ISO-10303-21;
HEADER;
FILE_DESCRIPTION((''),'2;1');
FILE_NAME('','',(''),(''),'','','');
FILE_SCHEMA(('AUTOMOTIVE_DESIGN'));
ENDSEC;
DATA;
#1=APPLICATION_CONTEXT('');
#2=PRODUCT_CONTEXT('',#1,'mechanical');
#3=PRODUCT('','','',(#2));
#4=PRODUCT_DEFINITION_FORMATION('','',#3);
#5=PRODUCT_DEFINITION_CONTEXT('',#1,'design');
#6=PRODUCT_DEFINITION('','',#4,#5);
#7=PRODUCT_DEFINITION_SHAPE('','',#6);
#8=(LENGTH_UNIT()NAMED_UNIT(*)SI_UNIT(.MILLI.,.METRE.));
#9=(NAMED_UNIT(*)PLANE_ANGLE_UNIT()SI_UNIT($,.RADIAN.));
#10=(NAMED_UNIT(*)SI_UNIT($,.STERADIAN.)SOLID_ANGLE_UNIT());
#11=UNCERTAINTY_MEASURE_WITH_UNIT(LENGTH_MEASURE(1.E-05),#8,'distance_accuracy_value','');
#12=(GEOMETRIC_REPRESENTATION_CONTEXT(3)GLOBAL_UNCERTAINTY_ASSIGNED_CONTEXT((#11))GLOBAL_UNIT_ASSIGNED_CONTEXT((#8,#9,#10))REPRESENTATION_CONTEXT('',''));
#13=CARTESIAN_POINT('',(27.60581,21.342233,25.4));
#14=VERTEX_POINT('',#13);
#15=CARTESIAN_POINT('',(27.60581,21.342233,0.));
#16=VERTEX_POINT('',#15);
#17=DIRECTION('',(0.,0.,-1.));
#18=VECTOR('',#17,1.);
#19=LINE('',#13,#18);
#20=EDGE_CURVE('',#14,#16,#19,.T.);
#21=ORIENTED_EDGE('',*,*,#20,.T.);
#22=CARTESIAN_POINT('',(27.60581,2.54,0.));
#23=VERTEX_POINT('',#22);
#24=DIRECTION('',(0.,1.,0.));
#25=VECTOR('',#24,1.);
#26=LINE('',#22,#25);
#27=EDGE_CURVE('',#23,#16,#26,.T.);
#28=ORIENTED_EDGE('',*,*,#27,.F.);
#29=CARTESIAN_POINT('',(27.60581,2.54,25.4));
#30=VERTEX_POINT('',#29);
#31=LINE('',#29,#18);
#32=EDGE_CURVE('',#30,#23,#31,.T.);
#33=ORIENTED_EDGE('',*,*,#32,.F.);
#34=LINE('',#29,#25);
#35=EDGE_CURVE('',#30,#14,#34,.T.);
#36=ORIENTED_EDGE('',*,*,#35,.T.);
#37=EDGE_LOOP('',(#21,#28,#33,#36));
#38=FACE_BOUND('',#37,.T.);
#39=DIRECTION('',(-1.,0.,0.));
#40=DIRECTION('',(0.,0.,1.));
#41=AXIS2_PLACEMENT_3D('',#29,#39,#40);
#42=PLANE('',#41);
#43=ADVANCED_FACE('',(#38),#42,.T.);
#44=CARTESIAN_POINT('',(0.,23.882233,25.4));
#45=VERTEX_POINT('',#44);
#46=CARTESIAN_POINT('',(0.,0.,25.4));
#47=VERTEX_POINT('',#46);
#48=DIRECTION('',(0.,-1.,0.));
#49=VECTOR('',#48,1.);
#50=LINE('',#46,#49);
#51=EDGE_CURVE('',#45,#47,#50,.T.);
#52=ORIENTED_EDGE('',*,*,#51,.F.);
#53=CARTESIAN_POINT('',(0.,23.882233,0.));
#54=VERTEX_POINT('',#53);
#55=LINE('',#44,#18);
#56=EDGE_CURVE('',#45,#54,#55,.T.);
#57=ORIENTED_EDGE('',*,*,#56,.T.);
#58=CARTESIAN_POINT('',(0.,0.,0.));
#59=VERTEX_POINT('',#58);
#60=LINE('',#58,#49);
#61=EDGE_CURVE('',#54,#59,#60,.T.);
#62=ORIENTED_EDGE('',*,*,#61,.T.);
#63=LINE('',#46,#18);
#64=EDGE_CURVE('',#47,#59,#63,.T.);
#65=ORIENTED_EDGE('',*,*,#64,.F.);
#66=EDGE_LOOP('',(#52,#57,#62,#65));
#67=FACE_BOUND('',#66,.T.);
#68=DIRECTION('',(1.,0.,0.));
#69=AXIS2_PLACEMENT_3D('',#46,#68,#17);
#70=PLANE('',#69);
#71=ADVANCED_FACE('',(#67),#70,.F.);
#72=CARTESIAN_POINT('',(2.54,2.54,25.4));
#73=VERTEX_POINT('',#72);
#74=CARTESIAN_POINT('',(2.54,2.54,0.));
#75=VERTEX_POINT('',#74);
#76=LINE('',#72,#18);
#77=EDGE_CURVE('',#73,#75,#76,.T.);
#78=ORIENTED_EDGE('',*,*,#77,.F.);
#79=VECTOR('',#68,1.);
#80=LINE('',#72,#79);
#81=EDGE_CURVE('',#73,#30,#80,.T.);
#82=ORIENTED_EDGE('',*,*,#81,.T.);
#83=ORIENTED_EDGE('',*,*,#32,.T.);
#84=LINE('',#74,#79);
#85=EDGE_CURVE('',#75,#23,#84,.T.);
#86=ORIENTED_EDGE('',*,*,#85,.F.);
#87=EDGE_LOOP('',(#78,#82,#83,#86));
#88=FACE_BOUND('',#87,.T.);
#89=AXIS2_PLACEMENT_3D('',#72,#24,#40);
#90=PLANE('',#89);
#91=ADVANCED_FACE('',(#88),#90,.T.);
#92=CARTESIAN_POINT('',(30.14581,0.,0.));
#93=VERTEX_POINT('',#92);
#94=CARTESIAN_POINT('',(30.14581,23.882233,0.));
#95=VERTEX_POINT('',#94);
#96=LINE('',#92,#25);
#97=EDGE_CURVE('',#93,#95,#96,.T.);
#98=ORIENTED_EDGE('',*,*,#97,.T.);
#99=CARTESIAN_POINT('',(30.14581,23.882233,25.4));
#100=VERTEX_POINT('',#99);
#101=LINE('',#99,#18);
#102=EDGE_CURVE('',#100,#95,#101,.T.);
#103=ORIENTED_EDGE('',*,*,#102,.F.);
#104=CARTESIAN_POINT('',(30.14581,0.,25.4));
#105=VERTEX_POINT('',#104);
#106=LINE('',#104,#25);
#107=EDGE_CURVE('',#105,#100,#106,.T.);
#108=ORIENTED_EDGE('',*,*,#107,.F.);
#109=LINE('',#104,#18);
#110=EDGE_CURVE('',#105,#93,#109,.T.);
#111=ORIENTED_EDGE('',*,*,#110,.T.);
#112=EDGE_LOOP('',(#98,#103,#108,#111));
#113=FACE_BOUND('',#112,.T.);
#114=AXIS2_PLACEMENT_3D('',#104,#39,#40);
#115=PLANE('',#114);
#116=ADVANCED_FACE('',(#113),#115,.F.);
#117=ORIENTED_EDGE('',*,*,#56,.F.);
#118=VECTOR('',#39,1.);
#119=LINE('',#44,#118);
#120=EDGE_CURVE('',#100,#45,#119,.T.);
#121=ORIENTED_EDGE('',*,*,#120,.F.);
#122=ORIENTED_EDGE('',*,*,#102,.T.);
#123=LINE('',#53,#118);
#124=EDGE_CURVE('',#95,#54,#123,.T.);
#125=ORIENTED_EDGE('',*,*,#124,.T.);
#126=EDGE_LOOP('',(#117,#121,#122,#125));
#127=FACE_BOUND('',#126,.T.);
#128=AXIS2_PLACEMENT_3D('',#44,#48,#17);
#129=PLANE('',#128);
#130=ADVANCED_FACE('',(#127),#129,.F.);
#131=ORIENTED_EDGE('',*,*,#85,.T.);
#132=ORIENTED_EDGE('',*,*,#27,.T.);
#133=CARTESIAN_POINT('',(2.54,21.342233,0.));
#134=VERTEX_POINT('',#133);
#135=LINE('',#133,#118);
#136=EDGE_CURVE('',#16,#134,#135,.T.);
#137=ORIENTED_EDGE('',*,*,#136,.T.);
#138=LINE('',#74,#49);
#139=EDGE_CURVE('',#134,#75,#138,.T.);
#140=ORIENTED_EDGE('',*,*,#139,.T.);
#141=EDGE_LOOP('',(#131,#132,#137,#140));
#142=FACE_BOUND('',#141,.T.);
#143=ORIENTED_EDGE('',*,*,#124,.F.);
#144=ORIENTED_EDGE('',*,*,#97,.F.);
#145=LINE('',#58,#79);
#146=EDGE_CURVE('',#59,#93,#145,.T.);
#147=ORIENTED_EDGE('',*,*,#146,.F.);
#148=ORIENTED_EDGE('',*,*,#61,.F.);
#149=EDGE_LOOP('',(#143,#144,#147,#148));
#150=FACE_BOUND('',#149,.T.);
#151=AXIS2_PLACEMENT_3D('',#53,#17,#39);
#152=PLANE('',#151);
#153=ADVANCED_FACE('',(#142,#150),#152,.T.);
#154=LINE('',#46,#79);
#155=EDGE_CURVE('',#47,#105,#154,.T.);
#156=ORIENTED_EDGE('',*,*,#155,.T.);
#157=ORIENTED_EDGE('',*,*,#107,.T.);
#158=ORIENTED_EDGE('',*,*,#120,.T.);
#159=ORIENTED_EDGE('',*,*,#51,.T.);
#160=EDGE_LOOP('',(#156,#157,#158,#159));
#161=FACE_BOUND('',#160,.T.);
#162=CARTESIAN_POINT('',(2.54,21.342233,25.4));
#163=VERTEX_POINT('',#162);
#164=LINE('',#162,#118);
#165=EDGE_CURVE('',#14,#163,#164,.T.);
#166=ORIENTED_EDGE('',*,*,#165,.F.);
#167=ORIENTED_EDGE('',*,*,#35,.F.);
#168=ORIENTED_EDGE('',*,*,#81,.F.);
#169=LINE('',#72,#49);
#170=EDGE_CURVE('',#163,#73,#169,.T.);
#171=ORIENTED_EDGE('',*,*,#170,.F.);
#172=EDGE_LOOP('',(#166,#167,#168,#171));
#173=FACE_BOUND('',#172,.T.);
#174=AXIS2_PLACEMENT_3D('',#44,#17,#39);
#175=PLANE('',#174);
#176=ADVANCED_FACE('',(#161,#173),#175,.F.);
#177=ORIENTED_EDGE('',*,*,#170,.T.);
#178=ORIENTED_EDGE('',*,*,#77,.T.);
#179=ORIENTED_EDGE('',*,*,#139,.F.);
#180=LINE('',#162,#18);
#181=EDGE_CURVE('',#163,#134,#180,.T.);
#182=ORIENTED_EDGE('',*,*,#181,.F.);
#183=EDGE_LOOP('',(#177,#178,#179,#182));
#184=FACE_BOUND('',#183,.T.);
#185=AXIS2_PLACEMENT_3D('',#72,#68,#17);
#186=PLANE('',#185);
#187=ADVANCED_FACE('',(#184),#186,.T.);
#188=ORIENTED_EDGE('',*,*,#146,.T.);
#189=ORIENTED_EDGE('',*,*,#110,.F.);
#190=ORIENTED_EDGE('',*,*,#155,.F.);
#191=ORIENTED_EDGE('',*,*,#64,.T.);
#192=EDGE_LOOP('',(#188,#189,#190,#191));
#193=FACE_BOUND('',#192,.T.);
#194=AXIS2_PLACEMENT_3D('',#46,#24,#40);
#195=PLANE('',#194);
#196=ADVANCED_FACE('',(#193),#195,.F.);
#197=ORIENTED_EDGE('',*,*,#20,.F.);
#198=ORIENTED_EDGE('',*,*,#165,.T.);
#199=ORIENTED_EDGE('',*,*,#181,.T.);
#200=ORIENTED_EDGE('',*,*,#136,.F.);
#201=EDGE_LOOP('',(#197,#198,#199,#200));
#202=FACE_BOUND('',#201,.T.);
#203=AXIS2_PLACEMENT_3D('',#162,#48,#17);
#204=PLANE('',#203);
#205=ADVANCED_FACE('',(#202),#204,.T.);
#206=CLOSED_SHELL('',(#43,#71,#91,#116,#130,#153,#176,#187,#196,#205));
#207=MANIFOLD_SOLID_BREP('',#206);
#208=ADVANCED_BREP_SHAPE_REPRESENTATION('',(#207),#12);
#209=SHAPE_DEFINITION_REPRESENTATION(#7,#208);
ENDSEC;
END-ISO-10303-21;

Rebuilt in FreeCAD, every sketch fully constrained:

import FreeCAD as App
import Part
import Sketcher
Q = App.Units.Quantity


def add_polygon(sketch, points):
    """Adds a closed chain of lines whose ends are joined by coincident constraints."""
    first, n = sketch.GeometryCount, len(points)
    for a, b in zip(points, points[1:] + points[:1]):
        sketch.addGeometry(Part.LineSegment(App.Vector(*a, 0), App.Vector(*b, 0)), False)
    for i in range(n):
        sketch.addConstraint(Sketcher.Constraint("Coincident", first + i, 2, first + (i + 1) % n, 1))

doc = App.newDocument("Part")
body = doc.addObject("PartDesign::Body", "Body")

# Sketch on XY plane
sketch1 = body.newObject("Sketcher::SketchObject", "Sketch")
sketch1.AttachmentSupport = (doc.getObject("XY_Plane"), [""])
sketch1.MapMode = "FlatFace"
add_polygon(sketch1, [(0, 24), (0, 0), (30, 0), (30, 24)])  # lines 0-3
add_polygon(sketch1, [(28, 3), (3, 3), (3, 21), (28, 21)])  # lines 4-7
sketch1.addConstraint(Sketcher.Constraint("Vertical", 0))
sketch1.addConstraint(Sketcher.Constraint("Horizontal", 1))
sketch1.addConstraint(Sketcher.Constraint("Vertical", 2))
sketch1.addConstraint(Sketcher.Constraint("Horizontal", 3))
sketch1.addConstraint(Sketcher.Constraint("Horizontal", 4))
sketch1.addConstraint(Sketcher.Constraint("Vertical", 5))
sketch1.addConstraint(Sketcher.Constraint("Horizontal", 6))
sketch1.addConstraint(Sketcher.Constraint("Vertical", 7))
sketch1.addConstraint(Sketcher.Constraint("Coincident", 0, 2, -1, 1))
sketch1.addConstraint(Sketcher.Constraint("DistanceX", -1, 1, 4, 2, Q("0.1 in")))
sketch1.addConstraint(Sketcher.Constraint("DistanceY", -1, 1, 4, 2, Q("0.1 in")))
sketch1.addConstraint(Sketcher.Constraint("DistanceY", 5, 2, 3, 2, Q("0.1 in")))
sketch1.addConstraint(Sketcher.Constraint("DistanceX", 6, 2, 2, 2, Q("0.1 in")))
sketch1.addConstraint(Sketcher.Constraint("DistanceX", 1, 1, 1, 2, 30.14581))
sketch1.addConstraint(Sketcher.Constraint("DistanceY", 0, 2, 0, 1, 23.882233))
pad1 = body.newObject("PartDesign::Pad", "Pad")
pad1.Profile = sketch1
pad1.Length = Q("1 in")

doc.recompute()
